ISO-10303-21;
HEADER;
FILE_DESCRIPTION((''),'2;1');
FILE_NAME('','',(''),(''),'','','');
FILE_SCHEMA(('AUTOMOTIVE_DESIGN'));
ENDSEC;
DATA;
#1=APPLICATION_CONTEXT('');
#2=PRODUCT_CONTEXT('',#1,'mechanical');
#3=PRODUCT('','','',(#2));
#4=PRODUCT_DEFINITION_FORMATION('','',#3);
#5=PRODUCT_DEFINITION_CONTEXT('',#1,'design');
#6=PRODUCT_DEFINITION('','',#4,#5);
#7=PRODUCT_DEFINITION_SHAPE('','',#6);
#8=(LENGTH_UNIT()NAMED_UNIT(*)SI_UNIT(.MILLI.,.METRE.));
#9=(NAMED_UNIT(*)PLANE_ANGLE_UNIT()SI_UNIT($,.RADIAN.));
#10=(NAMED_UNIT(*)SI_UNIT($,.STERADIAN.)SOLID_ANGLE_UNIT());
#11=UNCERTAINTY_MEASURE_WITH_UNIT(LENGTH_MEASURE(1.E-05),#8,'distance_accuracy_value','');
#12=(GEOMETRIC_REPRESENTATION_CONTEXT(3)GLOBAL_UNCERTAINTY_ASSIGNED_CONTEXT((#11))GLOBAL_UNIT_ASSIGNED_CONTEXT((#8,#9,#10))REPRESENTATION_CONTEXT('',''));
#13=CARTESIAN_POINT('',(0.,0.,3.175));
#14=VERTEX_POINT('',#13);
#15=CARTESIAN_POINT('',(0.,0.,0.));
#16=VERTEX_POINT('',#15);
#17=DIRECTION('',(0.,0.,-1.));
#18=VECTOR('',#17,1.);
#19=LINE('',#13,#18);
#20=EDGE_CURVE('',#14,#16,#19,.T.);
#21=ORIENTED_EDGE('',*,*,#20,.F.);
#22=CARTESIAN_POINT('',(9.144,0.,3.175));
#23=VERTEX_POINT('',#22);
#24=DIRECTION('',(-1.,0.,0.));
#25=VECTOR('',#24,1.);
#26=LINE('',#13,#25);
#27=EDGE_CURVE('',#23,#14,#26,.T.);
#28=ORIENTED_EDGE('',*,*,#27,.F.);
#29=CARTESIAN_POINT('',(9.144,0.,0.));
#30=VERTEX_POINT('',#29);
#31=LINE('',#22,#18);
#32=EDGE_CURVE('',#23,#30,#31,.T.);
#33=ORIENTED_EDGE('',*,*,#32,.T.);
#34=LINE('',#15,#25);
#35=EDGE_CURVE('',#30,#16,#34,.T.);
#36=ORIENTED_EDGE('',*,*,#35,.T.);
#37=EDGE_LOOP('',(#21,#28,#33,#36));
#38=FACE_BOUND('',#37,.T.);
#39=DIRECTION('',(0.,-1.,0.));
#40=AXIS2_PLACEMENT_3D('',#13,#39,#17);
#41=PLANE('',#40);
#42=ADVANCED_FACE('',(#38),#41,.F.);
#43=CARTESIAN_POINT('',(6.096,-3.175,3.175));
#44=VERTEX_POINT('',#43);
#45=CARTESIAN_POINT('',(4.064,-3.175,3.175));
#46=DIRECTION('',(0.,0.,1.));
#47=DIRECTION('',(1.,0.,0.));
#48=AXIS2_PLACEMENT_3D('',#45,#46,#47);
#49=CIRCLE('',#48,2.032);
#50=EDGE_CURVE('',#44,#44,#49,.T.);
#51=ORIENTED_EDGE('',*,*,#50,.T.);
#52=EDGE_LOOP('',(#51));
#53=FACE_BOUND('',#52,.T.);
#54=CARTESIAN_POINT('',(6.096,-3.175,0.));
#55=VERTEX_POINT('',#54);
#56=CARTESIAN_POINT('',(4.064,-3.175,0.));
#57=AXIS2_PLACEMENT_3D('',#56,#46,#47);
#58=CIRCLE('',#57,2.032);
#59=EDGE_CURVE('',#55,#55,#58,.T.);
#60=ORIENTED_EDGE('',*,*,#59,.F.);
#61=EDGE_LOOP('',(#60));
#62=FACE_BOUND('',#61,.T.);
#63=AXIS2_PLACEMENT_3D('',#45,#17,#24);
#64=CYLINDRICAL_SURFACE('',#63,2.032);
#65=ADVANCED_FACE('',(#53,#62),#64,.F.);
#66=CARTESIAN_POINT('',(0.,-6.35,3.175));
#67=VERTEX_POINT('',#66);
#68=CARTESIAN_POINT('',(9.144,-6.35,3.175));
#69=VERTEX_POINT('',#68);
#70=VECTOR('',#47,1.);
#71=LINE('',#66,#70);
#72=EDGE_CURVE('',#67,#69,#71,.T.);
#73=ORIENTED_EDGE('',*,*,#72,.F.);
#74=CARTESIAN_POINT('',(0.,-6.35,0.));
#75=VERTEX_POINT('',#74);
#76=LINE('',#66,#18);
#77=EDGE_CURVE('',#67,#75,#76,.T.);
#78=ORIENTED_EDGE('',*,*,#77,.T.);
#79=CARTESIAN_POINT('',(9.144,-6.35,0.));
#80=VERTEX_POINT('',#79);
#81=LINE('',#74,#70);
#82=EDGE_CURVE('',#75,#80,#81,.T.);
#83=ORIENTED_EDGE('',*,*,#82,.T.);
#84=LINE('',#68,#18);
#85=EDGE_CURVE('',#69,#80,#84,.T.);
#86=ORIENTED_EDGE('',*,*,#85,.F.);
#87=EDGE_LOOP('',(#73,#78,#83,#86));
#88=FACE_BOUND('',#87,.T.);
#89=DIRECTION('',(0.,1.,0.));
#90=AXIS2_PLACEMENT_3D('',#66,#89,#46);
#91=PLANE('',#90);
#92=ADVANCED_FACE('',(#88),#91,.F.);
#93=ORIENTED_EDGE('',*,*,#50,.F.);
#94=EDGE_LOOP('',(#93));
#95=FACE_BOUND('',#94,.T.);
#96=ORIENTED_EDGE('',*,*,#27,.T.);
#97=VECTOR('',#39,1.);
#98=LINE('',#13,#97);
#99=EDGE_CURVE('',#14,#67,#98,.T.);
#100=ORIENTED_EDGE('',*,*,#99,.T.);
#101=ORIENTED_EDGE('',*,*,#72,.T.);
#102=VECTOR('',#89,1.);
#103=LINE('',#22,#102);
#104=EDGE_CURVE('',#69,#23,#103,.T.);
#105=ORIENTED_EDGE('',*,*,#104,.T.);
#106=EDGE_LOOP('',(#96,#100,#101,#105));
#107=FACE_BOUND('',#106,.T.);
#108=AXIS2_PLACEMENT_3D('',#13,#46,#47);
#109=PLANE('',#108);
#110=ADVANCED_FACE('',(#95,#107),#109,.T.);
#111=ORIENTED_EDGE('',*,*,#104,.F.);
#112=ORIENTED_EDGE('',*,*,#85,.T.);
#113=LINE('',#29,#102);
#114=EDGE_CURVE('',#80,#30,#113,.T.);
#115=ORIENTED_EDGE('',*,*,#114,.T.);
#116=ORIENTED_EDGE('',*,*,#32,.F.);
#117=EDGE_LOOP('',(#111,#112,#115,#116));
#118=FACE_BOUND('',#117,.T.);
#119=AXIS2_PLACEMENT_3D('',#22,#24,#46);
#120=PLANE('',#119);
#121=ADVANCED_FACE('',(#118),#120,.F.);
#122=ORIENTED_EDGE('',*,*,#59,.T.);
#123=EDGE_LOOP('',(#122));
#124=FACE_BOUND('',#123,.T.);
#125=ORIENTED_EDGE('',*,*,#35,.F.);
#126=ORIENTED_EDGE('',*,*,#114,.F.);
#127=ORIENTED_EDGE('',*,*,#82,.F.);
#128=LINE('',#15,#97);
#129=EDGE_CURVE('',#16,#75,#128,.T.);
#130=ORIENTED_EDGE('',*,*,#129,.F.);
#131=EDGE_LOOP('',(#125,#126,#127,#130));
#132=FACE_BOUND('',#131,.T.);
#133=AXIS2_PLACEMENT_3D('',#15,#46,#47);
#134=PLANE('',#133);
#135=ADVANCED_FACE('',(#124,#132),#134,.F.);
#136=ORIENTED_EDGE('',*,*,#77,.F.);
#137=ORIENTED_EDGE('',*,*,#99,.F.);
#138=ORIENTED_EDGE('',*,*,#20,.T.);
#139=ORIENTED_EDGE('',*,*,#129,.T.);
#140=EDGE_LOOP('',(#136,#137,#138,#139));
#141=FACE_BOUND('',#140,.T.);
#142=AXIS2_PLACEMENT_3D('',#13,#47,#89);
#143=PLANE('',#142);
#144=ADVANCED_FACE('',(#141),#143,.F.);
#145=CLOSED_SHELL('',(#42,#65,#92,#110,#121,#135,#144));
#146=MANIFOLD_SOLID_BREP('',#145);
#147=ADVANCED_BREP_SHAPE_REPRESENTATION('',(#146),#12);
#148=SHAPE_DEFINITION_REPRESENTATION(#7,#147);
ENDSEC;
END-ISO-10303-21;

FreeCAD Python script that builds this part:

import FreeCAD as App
import Part
import Sketcher

V = App.Vector
Q = App.Units.Quantity

doc = App.newDocument("Part")
body = doc.addObject("PartDesign::Body", "Body")

# Sketch on XY plane
sketch1 = doc.addObject("Sketcher::SketchObject", "Sketch")
body.addObject(sketch1)
sketch1.AttachmentSupport = (doc.XY_Plane, [""])
sketch1.MapMode = "FlatFace"
sketch1.addGeometry(Part.LineSegment(V(0, 0, 0), V(0, -6.3, 0)), False)
sketch1.addGeometry(Part.LineSegment(V(0, -6.3, 0), V(9.1, -6.3, 0)), False)
sketch1.addGeometry(Part.LineSegment(V(9.1, -6.3, 0), V(9.1, 0, 0)), False)
sketch1.addGeometry(Part.LineSegment(V(9.1, 0, 0), V(0, 0, 0)), False)
sketch1.addGeometry(Part.Circle(V(4.1, -3.2, 0), V(0, 0, 1), 2), False)
sketch1.addConstraint(Sketcher.Constraint("Coincident", 0, 2, 1, 1))
sketch1.addConstraint(Sketcher.Constraint("Coincident", 1, 2, 2, 1))
sketch1.addConstraint(Sketcher.Constraint("Coincident", 2, 2, 3, 1))
sketch1.addConstraint(Sketcher.Constraint("Coincident", 3, 2, 0, 1))
sketch1.addConstraint(Sketcher.Constraint("Vertical", 0))
sketch1.addConstraint(Sketcher.Constraint("Horizontal", 1))
sketch1.addConstraint(Sketcher.Constraint("Vertical", 2))
sketch1.addConstraint(Sketcher.Constraint("Horizontal", 3))
sketch1.addConstraint(Sketcher.Constraint("Coincident", 3, 2, -1, 1))
sketch1.addConstraint(Sketcher.Constraint("Diameter", 4, Q("0.16 in")))
sketch1.addConstraint(Sketcher.Constraint("DistanceX", 1, 1, 1, 2, Q("0.36 in")))
sketch1.addConstraint(Sketcher.Constraint("DistanceY", 0, 2, 0, 1, Q("0.25 in")))
sketch1.addConstraint(Sketcher.Constraint("DistanceX", 4, 3, 1, 2, Q("0.2 in")))
sketch1.addConstraint(Sketcher.Constraint("DistanceY", 4, 3, -1, 1, Q("0.125 in")))
pad1 = doc.addObject("PartDesign::Pad", "Pad")
body.addObject(pad1)
pad1.Profile = sketch1
pad1.Length = Q("0.125 in")

doc.recompute()
